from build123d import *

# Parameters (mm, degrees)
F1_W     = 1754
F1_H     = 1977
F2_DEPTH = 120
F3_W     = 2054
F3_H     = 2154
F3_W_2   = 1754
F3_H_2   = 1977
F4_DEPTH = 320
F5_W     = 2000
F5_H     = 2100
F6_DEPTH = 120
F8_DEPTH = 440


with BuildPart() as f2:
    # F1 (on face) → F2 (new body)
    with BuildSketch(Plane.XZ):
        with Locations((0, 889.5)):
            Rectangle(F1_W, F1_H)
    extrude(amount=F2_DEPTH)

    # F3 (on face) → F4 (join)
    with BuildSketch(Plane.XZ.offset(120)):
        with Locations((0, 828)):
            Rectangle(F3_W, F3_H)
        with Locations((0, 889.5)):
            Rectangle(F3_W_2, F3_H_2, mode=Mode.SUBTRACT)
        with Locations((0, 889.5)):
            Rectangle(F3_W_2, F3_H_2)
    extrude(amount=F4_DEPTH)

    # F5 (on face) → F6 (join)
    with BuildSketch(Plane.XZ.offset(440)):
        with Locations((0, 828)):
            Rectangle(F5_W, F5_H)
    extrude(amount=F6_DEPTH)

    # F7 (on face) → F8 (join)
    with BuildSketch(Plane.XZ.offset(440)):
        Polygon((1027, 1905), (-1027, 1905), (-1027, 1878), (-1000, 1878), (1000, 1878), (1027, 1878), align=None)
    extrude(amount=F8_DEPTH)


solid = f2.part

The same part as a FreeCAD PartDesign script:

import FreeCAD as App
import Part
import Sketcher
from FreeCAD import Vector


def add_polygon(sketch, points):
    """Adds a closed chain of lines whose ends are joined by coincident constraints."""
    first, n = sketch.GeometryCount, len(points)
    for a, b in zip(points, points[1:] + points[:1]):
        sketch.addGeometry(Part.LineSegment(App.Vector(*a, 0), App.Vector(*b, 0)), False)
    for i in range(n):
        sketch.addConstraint(Sketcher.Constraint("Coincident", first + i, 2, first + (i + 1) % n, 1))

doc = App.newDocument("Part")
body = doc.addObject("PartDesign::Body", "Body")

# Sketch on XZ plane
sketch1 = body.newObject("Sketcher::SketchObject", "Sketch")
sketch1.AttachmentSupport = (doc.getObject("XZ_Plane"), [""])
sketch1.MapMode = "FlatFace"
add_polygon(sketch1, [(-877, 1878), (-877, -99), (877, -99), (877, 1878)])  # lines 0-3
sketch1.addConstraint([
    Sketcher.Constraint("Vertical", 0),
    Sketcher.Constraint("Horizontal", 1),
    Sketcher.Constraint("Vertical", 2),
    Sketcher.Constraint("Horizontal", 3),
    Sketcher.Constraint("DistanceX", 1, 1, 1, 2, 1754.0),
    Sketcher.Constraint("DistanceY", 0, 2, 0, 1, 1977.0),
    Sketcher.Constraint("DistanceX", 0, 2, -1, 1, 877.0),
    Sketcher.Constraint("DistanceY", 0, 2, -1, 1, 99.0),
])
pad1 = body.newObject("PartDesign::Pad", "Pad")
pad1.Profile = sketch1
pad1.Length = 120

# Sketch on XZ plane
sketch2 = body.newObject("Sketcher::SketchObject", "Sketch001")
sketch2.AttachmentSupport = (doc.getObject("XZ_Plane"), [""])
sketch2.MapMode = "FlatFace"
sketch2.AttachmentOffset = App.Placement(Vector(0, 0, 120), App.Rotation())
add_polygon(sketch2, [(-1027, 1905), (-1027, -249), (1027, -249), (1027, 1905)])  # lines 0-3
sketch2.addConstraint([
    Sketcher.Constraint("Vertical", 0),
    Sketcher.Constraint("Horizontal", 1),
    Sketcher.Constraint("Vertical", 2),
    Sketcher.Constraint("Horizontal", 3),
    Sketcher.Constraint("DistanceX", 1, 1, 1, 2, 2054.0),
    Sketcher.Constraint("DistanceY", 0, 2, 0, 1, 2154.0),
    Sketcher.Constraint("DistanceX", 0, 2, -1, 1, 1027.0),
    Sketcher.Constraint("DistanceY", 0, 2, -1, 1, 249.0),
])
pad2 = body.newObject("PartDesign::Pad", "Pad001")
pad2.Profile = sketch2
pad2.Length = 320

# Sketch on XZ plane
sketch3 = body.newObject("Sketcher::SketchObject", "Sketch002")
sketch3.AttachmentSupport = (doc.getObject("XZ_Plane"), [""])
sketch3.MapMode = "FlatFace"
sketch3.AttachmentOffset = App.Placement(Vector(0, 0, 440), App.Rotation())
add_polygon(sketch3, [(-1000, 1878), (-1000, -222), (1000, -222), (1000, 1878)])  # lines 0-3
sketch3.addConstraint([
    Sketcher.Constraint("Vertical", 0),
    Sketcher.Constraint("Horizontal", 1),
    Sketcher.Constraint("Vertical", 2),
    Sketcher.Constraint("Horizontal", 3),
    Sketcher.Constraint("DistanceX", 1, 1, 1, 2, 2000.0),
    Sketcher.Constraint("DistanceY", 0, 2, 0, 1, 2100.0),
    Sketcher.Constraint("DistanceX", 0, 2, -1, 1, 1000.0),
    Sketcher.Constraint("DistanceY", 0, 2, -1, 1, 222.0),
])
pad3 = body.newObject("PartDesign::Pad", "Pad002")
pad3.Profile = sketch3
pad3.Length = 120

# Sketch on XZ plane
sketch4 = body.newObject("Sketcher::SketchObject", "Sketch003")
sketch4.AttachmentSupport = (doc.getObject("XZ_Plane"), [""])
sketch4.MapMode = "FlatFace"
sketch4.AttachmentOffset = App.Placement(Vector(0, 0, 440), App.Rotation())
add_polygon(sketch4, [(1027, 1905), (-1027, 1905), (-1027, 1878), (1027, 1878)])  # lines 0-3
sketch4.addConstraint([
    Sketcher.Constraint("Horizontal", 0),
    Sketcher.Constraint("Vertical", 1),
    Sketcher.Constraint("Horizontal", 2),
    Sketcher.Constraint("Vertical", 3),
    Sketcher.Constraint("DistanceX", 0, 2, 0, 1, 2054.0),
    Sketcher.Constraint("DistanceY", 1, 2, 1, 1, 27.0),
    Sketcher.Constraint("DistanceX", 0, 2, -1, 1, 1027.0),
    Sketcher.Constraint("DistanceY", -1, 1, 0, 2, 1905.0),
])
pad4 = body.newObject("PartDesign::Pad", "Pad003")
pad4.Profile = sketch4
pad4.Length = 440

doc.recompute()
